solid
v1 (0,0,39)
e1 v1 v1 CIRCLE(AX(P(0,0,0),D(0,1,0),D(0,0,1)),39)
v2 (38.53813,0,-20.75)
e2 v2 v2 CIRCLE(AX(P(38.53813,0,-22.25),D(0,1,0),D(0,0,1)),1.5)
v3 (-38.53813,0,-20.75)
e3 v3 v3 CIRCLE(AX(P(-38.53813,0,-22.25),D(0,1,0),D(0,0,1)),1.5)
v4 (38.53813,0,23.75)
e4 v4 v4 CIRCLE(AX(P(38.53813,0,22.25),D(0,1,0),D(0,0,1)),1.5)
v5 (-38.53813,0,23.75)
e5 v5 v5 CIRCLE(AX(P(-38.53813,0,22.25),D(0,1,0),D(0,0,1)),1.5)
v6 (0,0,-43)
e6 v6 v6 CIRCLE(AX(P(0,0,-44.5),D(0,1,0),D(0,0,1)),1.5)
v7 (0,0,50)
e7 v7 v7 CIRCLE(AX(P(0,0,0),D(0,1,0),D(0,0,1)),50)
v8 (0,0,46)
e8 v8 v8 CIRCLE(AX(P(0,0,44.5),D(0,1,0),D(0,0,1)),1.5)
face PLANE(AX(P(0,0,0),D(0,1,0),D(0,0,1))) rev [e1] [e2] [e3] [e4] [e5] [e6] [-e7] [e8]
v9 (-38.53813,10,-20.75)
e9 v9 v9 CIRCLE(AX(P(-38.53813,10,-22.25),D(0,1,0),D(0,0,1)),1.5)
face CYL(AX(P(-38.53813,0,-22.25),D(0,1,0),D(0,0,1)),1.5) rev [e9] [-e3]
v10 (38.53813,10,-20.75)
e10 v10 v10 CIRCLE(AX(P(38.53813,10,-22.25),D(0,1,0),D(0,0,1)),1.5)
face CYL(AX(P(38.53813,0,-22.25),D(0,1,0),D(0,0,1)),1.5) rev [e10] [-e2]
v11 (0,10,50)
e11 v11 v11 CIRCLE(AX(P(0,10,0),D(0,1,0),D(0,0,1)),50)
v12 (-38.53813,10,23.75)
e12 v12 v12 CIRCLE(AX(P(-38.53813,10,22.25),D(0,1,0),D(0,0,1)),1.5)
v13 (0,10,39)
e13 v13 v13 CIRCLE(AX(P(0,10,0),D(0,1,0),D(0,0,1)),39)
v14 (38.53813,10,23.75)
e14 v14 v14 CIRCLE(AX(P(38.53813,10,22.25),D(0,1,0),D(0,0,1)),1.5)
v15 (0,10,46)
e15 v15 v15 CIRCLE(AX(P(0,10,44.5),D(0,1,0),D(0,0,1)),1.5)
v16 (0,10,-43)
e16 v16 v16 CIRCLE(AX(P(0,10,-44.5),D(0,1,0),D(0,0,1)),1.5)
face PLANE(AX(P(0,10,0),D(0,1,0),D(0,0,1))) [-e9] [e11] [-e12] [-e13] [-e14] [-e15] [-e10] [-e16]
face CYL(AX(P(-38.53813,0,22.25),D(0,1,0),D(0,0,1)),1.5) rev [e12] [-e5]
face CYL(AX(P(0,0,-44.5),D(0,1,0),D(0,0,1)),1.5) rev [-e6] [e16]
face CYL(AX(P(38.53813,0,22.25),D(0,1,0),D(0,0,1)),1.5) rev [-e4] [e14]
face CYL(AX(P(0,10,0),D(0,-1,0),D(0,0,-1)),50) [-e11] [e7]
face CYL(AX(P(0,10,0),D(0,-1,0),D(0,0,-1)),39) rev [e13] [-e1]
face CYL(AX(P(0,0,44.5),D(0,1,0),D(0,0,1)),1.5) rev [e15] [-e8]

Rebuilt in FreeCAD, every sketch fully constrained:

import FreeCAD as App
import Part
import Sketcher
Q = App.Units.Quantity

doc = App.newDocument("Part")
params = doc.addObject("Spreadsheet::Sheet", "Params")
for row, (alias, value) in enumerate([
    ("sketch1_diameter", "100 mm"),
    ("sketch1_diameter2", "78 mm"),
    ("pad1_length", "10 mm"),
    ("sketch2_diameter", "3 mm"),
    ("pocket1_length", "10 mm"),
], start=1):
    params.set(f"A{row}", alias)
    params.set(f"B{row}", "=" + value)
    params.setAlias(f"B{row}", alias)

body = doc.addObject("PartDesign::Body", "Body")

# Sketch on XZ plane
sketch1 = doc.addObject("Sketcher::SketchObject", "Sketch")
body.addObject(sketch1)
sketch1.AttachmentSupport = (doc.XZ_Plane, [""])
sketch1.MapMode = "FlatFace"
sketch1.addGeometry([
    Part.Circle(App.Vector(0, 0, 0), App.Vector(0, 0, 1), 50),
    Part.Circle(App.Vector(0, 0, 0), App.Vector(0, 0, 1), 39),
], False)
sketch1.addConstraint([
    Sketcher.Constraint("Coincident", 0, 3, -1, 1),
    Sketcher.Constraint("Coincident", 1, 3, -1, 1),
    Sketcher.Constraint("Diameter", 0, Q("100 mm")),
    Sketcher.Constraint("Diameter", 1, Q("78 mm")),
])
sketch1.setExpression("Constraints[2]", "Params.sketch1_diameter")
sketch1.setExpression("Constraints[3]", "Params.sketch1_diameter2")
pad1 = doc.addObject("PartDesign::Pad", "Pad")
body.addObject(pad1)
pad1.Profile = sketch1
pad1.setExpression("Length", "Params.pad1_length")
pad1.Reversed = True

# Sketch on XZ plane
sketch2 = doc.addObject("Sketcher::SketchObject", "Sketch001")
body.addObject(sketch2)
sketch2.AttachmentSupport = (doc.XZ_Plane, [""])
sketch2.MapMode = "FlatFace"
sketch2.AttachmentOffset = App.Placement(App.Vector(0, 0, -10), App.Rotation())
sketch2.addGeometry([
    Part.Circle(App.Vector(0, -44.5, 0), App.Vector(0, 0, 1), 1.5),  # 0
    Part.Circle(App.Vector(38.53813, -22.25, 0), App.Vector(0, 0, 1), 1.5),  # 1
    Part.Circle(App.Vector(38.53813, 22.25, 0), App.Vector(0, 0, 1), 1.5),  # 2
    Part.Circle(App.Vector(0, 44.5, 0), App.Vector(0, 0, 1), 1.5),  # 3
    Part.Circle(App.Vector(-38.53813, 22.25, 0), App.Vector(0, 0, 1), 1.5),  # 4
    Part.Circle(App.Vector(-38.53813, -22.25, 0), App.Vector(0, 0, 1), 1.5),  # 5
], False)
sketch2.addConstraint([
    Sketcher.Constraint("Equal", 0, 1),
    Sketcher.Constraint("Equal", 1, 2),
    Sketcher.Constraint("Equal", 2, 3),
    Sketcher.Constraint("Equal", 3, 4),
    Sketcher.Constraint("Equal", 4, 5),
    Sketcher.Constraint("Symmetric", 0, 3, 3, 3, -1, 1),
    Sketcher.Constraint("Symmetric", 1, 3, 4, 3, -1, 1),
    Sketcher.Constraint("Symmetric", 2, 3, 5, 3, -1, 1),
    Sketcher.Constraint("Symmetric", 2, 3, 4, 3, -2),
    Sketcher.Constraint("PointOnObject", 0, 3, -2),
    Sketcher.Constraint("Diameter", 0, Q("3 mm")),
    Sketcher.Constraint("DistanceY", 0, 3, 3, 3, Q("89 mm")),
    Sketcher.Constraint("DistanceY", 1, 3, 2, 3, Q("44.5 mm")),
    Sketcher.Constraint("DistanceX", -1, 1, 1, 3, Q("38.53813 mm")),
])
sketch2.setExpression("Constraints[10]", "Params.sketch2_diameter")
pocket1 = doc.addObject("PartDesign::Pocket", "Pocket")
body.addObject(pocket1)
pocket1.Profile = sketch2
pocket1.setExpression("Length", "Params.pocket1_length")
pocket1.Reversed = True

doc.recompute()
